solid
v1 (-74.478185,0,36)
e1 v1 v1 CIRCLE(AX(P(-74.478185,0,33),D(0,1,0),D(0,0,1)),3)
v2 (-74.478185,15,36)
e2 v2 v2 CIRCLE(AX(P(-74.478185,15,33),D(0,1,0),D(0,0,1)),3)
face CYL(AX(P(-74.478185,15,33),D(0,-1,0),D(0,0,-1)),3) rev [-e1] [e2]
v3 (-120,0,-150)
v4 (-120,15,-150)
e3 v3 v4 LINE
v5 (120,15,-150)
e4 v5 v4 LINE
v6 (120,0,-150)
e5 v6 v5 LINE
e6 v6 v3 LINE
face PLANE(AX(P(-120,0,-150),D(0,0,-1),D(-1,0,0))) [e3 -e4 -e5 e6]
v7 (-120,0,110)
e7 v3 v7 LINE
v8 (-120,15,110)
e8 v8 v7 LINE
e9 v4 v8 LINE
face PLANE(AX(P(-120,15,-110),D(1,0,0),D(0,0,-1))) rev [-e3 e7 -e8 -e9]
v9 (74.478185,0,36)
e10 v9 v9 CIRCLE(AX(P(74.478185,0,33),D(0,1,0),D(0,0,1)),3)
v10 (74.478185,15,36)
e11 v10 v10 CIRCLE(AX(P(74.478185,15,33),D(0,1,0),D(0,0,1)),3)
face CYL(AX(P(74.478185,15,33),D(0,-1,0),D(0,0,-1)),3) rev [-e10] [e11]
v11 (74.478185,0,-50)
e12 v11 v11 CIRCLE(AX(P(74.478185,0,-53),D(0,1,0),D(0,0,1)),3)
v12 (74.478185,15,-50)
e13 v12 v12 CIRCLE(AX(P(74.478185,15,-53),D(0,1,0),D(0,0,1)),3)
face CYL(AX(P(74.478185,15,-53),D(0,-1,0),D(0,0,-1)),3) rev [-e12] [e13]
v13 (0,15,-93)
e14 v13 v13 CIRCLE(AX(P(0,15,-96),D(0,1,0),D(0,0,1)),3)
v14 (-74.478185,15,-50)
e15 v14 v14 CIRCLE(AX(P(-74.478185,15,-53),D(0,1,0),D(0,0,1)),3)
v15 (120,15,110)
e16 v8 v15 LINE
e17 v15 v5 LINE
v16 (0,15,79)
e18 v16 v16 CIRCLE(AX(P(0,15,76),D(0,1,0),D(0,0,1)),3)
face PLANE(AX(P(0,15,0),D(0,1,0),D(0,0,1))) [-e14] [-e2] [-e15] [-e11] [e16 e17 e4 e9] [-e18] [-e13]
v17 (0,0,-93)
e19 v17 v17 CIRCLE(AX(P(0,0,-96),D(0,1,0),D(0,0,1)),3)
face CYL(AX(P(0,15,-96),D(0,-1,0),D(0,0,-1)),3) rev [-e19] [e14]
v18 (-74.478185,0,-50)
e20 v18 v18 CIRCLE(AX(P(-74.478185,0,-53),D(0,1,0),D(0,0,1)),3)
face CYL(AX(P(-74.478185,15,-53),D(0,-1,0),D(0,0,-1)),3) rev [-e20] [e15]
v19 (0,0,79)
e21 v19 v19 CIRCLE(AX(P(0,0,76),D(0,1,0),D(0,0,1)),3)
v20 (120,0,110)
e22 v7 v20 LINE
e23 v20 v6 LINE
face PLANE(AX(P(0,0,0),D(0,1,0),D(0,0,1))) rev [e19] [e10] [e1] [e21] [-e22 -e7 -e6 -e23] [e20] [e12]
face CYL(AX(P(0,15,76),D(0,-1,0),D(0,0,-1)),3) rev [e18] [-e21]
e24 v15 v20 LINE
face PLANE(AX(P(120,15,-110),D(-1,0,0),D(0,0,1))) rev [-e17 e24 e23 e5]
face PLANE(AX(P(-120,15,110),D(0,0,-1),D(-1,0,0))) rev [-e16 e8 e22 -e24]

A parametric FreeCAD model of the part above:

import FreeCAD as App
import Part
import Sketcher
from FreeCAD import Vector

doc = App.newDocument("Part")
body = doc.addObject("PartDesign::Body", "Body")

sketch1 = body.newObject("Sketcher::SketchObject", "Sketch")
sketch1.AttachmentSupport = (doc.getObject("XZ_Plane"), [""])
sketch1.MapMode = "FlatFace"
sketch1.addGeometry(Part.LineSegment(Vector(-120, -110, 0), Vector(-120, 110, 0)), False)
sketch1.addGeometry(Part.LineSegment(Vector(-120, 110, 0), Vector(120, 110, 0)), False)
sketch1.addGeometry(Part.LineSegment(Vector(120, 110, 0), Vector(120, -110, 0)), False)
sketch1.addGeometry(Part.LineSegment(Vector(120, -110, 0), Vector(-120, -110, 0)), False)
sketch1.addGeometry(Part.Circle(Vector(-74.5, 33, 0), Vector(0, 0, 1), 3), False)
sketch1.addGeometry(Part.Circle(Vector(0, 76, 0), Vector(0, 0, 1), 3), False)
sketch1.addGeometry(Part.Circle(Vector(74.5, 33, 0), Vector(0, 0, 1), 3), False)
sketch1.addGeometry(Part.Circle(Vector(-74.5, -53, 0), Vector(0, 0, 1), 3), False)
sketch1.addGeometry(Part.Circle(Vector(74.5, -53, 0), Vector(0, 0, 1), 3), False)
sketch1.addGeometry(Part.Circle(Vector(0, -96, 0), Vector(0, 0, 1), 3), False)
sketch1.addConstraint(Sketcher.Constraint("Coincident", 0, 2, 1, 1))
sketch1.addConstraint(Sketcher.Constraint("Coincident", 1, 2, 2, 1))
sketch1.addConstraint(Sketcher.Constraint("Coincident", 2, 2, 3, 1))
sketch1.addConstraint(Sketcher.Constraint("Coincident", 3, 2, 0, 1))
sketch1.addConstraint(Sketcher.Constraint("Vertical", 0))
sketch1.addConstraint(Sketcher.Constraint("Horizontal", 1))
sketch1.addConstraint(Sketcher.Constraint("Vertical", 2))
sketch1.addConstraint(Sketcher.Constraint("Horizontal", 3))
sketch1.addConstraint(Sketcher.Constraint("Equal", 4, 5))
sketch1.addConstraint(Sketcher.Constraint("Equal", 5, 6))
sketch1.addConstraint(Sketcher.Constraint("Equal", 6, 7))
sketch1.addConstraint(Sketcher.Constraint("Equal", 7, 8))
sketch1.addConstraint(Sketcher.Constraint("Equal", 8, 9))
sketch1.addConstraint(Sketcher.Constraint("Symmetric", 0, 2, 2, 2, -1, 1))
sketch1.addConstraint(Sketcher.Constraint("Symmetric", 4, 3, 6, 3, -2))
sketch1.addConstraint(Sketcher.Constraint("Symmetric", 7, 3, 8, 3, -2))
sketch1.addConstraint(Sketcher.Constraint("PointOnObject", 5, 3, -2))
sketch1.addConstraint(Sketcher.Constraint("PointOnObject", 9, 3, -2))
sketch1.addConstraint(Sketcher.Constraint("Vertical", 4, 3, 7, 3))
sketch1.addConstraint(Sketcher.Constraint("Diameter", 4, 6.0))
sketch1.addConstraint(Sketcher.Constraint("DistanceX", 1, 1, 1, 2, 240.0))
sketch1.addConstraint(Sketcher.Constraint("DistanceY", 0, 1, 0, 2, 220.0))
sketch1.addConstraint(Sketcher.Constraint("DistanceY", -1, 1, 4, 3, 33.0))
sketch1.addConstraint(Sketcher.Constraint("DistanceY", -1, 1, 5, 3, 76.0))
sketch1.addConstraint(Sketcher.Constraint("DistanceY", 7, 3, -1, 1, 53.0))
sketch1.addConstraint(Sketcher.Constraint("DistanceY", 9, 3, -1, 1, 96.0))
sketch1.addConstraint(Sketcher.Constraint("DistanceX", 4, 3, 6, 3, 148.956369))
pad1 = body.newObject("PartDesign::Pad", "Pad")
pad1.Profile = sketch1
pad1.Length = 15
pad1.Reversed = True

sketch2 = body.newObject("Sketcher::SketchObject", "Sketch001")
sketch2.AttachmentSupport = (doc.getObject("XZ_Plane"), [""])
sketch2.MapMode = "FlatFace"
sketch2.AttachmentOffset = App.Placement(Vector(0, 0, -15), App.Rotation())
sketch2.addGeometry(Part.LineSegment(Vector(-120, -150, 0), Vector(-120, -110, 0)), False)
sketch2.addGeometry(Part.LineSegment(Vector(-120, -110, 0), Vector(120, -110, 0)), False)
sketch2.addGeometry(Part.LineSegment(Vector(120, -110, 0), Vector(120, -150, 0)), False)
sketch2.addGeometry(Part.LineSegment(Vector(120, -150, 0), Vector(-120, -150, 0)), False)
sketch2.addConstraint(Sketcher.Constraint("Coincident", 0, 2, 1, 1))
sketch2.addConstraint(Sketcher.Constraint("Coincident", 1, 2, 2, 1))
sketch2.addConstraint(Sketcher.Constraint("Coincident", 2, 2, 3, 1))
sketch2.addConstraint(Sketcher.Constraint("Coincident", 3, 2, 0, 1))
sketch2.addConstraint(Sketcher.Constraint("Vertical", 0))
sketch2.addConstraint(Sketcher.Constraint("Horizontal", 1))
sketch2.addConstraint(Sketcher.Constraint("Vertical", 2))
sketch2.addConstraint(Sketcher.Constraint("Horizontal", 3))
sketch2.addConstraint(Sketcher.Constraint("DistanceX", 1, 1, 1, 2, 240.0))
sketch2.addConstraint(Sketcher.Constraint("DistanceY", 0, 1, 0, 2, 40.0))
sketch2.addConstraint(Sketcher.Constraint("DistanceX", 0, 2, -1, 1, 120.0))
sketch2.addConstraint(Sketcher.Constraint("DistanceY", 0, 2, -1, 1, 110.0))
pad2 = body.newObject("PartDesign::Pad", "Pad001")
pad2.Profile = sketch2
pad2.Length = 15

doc.recompute()
